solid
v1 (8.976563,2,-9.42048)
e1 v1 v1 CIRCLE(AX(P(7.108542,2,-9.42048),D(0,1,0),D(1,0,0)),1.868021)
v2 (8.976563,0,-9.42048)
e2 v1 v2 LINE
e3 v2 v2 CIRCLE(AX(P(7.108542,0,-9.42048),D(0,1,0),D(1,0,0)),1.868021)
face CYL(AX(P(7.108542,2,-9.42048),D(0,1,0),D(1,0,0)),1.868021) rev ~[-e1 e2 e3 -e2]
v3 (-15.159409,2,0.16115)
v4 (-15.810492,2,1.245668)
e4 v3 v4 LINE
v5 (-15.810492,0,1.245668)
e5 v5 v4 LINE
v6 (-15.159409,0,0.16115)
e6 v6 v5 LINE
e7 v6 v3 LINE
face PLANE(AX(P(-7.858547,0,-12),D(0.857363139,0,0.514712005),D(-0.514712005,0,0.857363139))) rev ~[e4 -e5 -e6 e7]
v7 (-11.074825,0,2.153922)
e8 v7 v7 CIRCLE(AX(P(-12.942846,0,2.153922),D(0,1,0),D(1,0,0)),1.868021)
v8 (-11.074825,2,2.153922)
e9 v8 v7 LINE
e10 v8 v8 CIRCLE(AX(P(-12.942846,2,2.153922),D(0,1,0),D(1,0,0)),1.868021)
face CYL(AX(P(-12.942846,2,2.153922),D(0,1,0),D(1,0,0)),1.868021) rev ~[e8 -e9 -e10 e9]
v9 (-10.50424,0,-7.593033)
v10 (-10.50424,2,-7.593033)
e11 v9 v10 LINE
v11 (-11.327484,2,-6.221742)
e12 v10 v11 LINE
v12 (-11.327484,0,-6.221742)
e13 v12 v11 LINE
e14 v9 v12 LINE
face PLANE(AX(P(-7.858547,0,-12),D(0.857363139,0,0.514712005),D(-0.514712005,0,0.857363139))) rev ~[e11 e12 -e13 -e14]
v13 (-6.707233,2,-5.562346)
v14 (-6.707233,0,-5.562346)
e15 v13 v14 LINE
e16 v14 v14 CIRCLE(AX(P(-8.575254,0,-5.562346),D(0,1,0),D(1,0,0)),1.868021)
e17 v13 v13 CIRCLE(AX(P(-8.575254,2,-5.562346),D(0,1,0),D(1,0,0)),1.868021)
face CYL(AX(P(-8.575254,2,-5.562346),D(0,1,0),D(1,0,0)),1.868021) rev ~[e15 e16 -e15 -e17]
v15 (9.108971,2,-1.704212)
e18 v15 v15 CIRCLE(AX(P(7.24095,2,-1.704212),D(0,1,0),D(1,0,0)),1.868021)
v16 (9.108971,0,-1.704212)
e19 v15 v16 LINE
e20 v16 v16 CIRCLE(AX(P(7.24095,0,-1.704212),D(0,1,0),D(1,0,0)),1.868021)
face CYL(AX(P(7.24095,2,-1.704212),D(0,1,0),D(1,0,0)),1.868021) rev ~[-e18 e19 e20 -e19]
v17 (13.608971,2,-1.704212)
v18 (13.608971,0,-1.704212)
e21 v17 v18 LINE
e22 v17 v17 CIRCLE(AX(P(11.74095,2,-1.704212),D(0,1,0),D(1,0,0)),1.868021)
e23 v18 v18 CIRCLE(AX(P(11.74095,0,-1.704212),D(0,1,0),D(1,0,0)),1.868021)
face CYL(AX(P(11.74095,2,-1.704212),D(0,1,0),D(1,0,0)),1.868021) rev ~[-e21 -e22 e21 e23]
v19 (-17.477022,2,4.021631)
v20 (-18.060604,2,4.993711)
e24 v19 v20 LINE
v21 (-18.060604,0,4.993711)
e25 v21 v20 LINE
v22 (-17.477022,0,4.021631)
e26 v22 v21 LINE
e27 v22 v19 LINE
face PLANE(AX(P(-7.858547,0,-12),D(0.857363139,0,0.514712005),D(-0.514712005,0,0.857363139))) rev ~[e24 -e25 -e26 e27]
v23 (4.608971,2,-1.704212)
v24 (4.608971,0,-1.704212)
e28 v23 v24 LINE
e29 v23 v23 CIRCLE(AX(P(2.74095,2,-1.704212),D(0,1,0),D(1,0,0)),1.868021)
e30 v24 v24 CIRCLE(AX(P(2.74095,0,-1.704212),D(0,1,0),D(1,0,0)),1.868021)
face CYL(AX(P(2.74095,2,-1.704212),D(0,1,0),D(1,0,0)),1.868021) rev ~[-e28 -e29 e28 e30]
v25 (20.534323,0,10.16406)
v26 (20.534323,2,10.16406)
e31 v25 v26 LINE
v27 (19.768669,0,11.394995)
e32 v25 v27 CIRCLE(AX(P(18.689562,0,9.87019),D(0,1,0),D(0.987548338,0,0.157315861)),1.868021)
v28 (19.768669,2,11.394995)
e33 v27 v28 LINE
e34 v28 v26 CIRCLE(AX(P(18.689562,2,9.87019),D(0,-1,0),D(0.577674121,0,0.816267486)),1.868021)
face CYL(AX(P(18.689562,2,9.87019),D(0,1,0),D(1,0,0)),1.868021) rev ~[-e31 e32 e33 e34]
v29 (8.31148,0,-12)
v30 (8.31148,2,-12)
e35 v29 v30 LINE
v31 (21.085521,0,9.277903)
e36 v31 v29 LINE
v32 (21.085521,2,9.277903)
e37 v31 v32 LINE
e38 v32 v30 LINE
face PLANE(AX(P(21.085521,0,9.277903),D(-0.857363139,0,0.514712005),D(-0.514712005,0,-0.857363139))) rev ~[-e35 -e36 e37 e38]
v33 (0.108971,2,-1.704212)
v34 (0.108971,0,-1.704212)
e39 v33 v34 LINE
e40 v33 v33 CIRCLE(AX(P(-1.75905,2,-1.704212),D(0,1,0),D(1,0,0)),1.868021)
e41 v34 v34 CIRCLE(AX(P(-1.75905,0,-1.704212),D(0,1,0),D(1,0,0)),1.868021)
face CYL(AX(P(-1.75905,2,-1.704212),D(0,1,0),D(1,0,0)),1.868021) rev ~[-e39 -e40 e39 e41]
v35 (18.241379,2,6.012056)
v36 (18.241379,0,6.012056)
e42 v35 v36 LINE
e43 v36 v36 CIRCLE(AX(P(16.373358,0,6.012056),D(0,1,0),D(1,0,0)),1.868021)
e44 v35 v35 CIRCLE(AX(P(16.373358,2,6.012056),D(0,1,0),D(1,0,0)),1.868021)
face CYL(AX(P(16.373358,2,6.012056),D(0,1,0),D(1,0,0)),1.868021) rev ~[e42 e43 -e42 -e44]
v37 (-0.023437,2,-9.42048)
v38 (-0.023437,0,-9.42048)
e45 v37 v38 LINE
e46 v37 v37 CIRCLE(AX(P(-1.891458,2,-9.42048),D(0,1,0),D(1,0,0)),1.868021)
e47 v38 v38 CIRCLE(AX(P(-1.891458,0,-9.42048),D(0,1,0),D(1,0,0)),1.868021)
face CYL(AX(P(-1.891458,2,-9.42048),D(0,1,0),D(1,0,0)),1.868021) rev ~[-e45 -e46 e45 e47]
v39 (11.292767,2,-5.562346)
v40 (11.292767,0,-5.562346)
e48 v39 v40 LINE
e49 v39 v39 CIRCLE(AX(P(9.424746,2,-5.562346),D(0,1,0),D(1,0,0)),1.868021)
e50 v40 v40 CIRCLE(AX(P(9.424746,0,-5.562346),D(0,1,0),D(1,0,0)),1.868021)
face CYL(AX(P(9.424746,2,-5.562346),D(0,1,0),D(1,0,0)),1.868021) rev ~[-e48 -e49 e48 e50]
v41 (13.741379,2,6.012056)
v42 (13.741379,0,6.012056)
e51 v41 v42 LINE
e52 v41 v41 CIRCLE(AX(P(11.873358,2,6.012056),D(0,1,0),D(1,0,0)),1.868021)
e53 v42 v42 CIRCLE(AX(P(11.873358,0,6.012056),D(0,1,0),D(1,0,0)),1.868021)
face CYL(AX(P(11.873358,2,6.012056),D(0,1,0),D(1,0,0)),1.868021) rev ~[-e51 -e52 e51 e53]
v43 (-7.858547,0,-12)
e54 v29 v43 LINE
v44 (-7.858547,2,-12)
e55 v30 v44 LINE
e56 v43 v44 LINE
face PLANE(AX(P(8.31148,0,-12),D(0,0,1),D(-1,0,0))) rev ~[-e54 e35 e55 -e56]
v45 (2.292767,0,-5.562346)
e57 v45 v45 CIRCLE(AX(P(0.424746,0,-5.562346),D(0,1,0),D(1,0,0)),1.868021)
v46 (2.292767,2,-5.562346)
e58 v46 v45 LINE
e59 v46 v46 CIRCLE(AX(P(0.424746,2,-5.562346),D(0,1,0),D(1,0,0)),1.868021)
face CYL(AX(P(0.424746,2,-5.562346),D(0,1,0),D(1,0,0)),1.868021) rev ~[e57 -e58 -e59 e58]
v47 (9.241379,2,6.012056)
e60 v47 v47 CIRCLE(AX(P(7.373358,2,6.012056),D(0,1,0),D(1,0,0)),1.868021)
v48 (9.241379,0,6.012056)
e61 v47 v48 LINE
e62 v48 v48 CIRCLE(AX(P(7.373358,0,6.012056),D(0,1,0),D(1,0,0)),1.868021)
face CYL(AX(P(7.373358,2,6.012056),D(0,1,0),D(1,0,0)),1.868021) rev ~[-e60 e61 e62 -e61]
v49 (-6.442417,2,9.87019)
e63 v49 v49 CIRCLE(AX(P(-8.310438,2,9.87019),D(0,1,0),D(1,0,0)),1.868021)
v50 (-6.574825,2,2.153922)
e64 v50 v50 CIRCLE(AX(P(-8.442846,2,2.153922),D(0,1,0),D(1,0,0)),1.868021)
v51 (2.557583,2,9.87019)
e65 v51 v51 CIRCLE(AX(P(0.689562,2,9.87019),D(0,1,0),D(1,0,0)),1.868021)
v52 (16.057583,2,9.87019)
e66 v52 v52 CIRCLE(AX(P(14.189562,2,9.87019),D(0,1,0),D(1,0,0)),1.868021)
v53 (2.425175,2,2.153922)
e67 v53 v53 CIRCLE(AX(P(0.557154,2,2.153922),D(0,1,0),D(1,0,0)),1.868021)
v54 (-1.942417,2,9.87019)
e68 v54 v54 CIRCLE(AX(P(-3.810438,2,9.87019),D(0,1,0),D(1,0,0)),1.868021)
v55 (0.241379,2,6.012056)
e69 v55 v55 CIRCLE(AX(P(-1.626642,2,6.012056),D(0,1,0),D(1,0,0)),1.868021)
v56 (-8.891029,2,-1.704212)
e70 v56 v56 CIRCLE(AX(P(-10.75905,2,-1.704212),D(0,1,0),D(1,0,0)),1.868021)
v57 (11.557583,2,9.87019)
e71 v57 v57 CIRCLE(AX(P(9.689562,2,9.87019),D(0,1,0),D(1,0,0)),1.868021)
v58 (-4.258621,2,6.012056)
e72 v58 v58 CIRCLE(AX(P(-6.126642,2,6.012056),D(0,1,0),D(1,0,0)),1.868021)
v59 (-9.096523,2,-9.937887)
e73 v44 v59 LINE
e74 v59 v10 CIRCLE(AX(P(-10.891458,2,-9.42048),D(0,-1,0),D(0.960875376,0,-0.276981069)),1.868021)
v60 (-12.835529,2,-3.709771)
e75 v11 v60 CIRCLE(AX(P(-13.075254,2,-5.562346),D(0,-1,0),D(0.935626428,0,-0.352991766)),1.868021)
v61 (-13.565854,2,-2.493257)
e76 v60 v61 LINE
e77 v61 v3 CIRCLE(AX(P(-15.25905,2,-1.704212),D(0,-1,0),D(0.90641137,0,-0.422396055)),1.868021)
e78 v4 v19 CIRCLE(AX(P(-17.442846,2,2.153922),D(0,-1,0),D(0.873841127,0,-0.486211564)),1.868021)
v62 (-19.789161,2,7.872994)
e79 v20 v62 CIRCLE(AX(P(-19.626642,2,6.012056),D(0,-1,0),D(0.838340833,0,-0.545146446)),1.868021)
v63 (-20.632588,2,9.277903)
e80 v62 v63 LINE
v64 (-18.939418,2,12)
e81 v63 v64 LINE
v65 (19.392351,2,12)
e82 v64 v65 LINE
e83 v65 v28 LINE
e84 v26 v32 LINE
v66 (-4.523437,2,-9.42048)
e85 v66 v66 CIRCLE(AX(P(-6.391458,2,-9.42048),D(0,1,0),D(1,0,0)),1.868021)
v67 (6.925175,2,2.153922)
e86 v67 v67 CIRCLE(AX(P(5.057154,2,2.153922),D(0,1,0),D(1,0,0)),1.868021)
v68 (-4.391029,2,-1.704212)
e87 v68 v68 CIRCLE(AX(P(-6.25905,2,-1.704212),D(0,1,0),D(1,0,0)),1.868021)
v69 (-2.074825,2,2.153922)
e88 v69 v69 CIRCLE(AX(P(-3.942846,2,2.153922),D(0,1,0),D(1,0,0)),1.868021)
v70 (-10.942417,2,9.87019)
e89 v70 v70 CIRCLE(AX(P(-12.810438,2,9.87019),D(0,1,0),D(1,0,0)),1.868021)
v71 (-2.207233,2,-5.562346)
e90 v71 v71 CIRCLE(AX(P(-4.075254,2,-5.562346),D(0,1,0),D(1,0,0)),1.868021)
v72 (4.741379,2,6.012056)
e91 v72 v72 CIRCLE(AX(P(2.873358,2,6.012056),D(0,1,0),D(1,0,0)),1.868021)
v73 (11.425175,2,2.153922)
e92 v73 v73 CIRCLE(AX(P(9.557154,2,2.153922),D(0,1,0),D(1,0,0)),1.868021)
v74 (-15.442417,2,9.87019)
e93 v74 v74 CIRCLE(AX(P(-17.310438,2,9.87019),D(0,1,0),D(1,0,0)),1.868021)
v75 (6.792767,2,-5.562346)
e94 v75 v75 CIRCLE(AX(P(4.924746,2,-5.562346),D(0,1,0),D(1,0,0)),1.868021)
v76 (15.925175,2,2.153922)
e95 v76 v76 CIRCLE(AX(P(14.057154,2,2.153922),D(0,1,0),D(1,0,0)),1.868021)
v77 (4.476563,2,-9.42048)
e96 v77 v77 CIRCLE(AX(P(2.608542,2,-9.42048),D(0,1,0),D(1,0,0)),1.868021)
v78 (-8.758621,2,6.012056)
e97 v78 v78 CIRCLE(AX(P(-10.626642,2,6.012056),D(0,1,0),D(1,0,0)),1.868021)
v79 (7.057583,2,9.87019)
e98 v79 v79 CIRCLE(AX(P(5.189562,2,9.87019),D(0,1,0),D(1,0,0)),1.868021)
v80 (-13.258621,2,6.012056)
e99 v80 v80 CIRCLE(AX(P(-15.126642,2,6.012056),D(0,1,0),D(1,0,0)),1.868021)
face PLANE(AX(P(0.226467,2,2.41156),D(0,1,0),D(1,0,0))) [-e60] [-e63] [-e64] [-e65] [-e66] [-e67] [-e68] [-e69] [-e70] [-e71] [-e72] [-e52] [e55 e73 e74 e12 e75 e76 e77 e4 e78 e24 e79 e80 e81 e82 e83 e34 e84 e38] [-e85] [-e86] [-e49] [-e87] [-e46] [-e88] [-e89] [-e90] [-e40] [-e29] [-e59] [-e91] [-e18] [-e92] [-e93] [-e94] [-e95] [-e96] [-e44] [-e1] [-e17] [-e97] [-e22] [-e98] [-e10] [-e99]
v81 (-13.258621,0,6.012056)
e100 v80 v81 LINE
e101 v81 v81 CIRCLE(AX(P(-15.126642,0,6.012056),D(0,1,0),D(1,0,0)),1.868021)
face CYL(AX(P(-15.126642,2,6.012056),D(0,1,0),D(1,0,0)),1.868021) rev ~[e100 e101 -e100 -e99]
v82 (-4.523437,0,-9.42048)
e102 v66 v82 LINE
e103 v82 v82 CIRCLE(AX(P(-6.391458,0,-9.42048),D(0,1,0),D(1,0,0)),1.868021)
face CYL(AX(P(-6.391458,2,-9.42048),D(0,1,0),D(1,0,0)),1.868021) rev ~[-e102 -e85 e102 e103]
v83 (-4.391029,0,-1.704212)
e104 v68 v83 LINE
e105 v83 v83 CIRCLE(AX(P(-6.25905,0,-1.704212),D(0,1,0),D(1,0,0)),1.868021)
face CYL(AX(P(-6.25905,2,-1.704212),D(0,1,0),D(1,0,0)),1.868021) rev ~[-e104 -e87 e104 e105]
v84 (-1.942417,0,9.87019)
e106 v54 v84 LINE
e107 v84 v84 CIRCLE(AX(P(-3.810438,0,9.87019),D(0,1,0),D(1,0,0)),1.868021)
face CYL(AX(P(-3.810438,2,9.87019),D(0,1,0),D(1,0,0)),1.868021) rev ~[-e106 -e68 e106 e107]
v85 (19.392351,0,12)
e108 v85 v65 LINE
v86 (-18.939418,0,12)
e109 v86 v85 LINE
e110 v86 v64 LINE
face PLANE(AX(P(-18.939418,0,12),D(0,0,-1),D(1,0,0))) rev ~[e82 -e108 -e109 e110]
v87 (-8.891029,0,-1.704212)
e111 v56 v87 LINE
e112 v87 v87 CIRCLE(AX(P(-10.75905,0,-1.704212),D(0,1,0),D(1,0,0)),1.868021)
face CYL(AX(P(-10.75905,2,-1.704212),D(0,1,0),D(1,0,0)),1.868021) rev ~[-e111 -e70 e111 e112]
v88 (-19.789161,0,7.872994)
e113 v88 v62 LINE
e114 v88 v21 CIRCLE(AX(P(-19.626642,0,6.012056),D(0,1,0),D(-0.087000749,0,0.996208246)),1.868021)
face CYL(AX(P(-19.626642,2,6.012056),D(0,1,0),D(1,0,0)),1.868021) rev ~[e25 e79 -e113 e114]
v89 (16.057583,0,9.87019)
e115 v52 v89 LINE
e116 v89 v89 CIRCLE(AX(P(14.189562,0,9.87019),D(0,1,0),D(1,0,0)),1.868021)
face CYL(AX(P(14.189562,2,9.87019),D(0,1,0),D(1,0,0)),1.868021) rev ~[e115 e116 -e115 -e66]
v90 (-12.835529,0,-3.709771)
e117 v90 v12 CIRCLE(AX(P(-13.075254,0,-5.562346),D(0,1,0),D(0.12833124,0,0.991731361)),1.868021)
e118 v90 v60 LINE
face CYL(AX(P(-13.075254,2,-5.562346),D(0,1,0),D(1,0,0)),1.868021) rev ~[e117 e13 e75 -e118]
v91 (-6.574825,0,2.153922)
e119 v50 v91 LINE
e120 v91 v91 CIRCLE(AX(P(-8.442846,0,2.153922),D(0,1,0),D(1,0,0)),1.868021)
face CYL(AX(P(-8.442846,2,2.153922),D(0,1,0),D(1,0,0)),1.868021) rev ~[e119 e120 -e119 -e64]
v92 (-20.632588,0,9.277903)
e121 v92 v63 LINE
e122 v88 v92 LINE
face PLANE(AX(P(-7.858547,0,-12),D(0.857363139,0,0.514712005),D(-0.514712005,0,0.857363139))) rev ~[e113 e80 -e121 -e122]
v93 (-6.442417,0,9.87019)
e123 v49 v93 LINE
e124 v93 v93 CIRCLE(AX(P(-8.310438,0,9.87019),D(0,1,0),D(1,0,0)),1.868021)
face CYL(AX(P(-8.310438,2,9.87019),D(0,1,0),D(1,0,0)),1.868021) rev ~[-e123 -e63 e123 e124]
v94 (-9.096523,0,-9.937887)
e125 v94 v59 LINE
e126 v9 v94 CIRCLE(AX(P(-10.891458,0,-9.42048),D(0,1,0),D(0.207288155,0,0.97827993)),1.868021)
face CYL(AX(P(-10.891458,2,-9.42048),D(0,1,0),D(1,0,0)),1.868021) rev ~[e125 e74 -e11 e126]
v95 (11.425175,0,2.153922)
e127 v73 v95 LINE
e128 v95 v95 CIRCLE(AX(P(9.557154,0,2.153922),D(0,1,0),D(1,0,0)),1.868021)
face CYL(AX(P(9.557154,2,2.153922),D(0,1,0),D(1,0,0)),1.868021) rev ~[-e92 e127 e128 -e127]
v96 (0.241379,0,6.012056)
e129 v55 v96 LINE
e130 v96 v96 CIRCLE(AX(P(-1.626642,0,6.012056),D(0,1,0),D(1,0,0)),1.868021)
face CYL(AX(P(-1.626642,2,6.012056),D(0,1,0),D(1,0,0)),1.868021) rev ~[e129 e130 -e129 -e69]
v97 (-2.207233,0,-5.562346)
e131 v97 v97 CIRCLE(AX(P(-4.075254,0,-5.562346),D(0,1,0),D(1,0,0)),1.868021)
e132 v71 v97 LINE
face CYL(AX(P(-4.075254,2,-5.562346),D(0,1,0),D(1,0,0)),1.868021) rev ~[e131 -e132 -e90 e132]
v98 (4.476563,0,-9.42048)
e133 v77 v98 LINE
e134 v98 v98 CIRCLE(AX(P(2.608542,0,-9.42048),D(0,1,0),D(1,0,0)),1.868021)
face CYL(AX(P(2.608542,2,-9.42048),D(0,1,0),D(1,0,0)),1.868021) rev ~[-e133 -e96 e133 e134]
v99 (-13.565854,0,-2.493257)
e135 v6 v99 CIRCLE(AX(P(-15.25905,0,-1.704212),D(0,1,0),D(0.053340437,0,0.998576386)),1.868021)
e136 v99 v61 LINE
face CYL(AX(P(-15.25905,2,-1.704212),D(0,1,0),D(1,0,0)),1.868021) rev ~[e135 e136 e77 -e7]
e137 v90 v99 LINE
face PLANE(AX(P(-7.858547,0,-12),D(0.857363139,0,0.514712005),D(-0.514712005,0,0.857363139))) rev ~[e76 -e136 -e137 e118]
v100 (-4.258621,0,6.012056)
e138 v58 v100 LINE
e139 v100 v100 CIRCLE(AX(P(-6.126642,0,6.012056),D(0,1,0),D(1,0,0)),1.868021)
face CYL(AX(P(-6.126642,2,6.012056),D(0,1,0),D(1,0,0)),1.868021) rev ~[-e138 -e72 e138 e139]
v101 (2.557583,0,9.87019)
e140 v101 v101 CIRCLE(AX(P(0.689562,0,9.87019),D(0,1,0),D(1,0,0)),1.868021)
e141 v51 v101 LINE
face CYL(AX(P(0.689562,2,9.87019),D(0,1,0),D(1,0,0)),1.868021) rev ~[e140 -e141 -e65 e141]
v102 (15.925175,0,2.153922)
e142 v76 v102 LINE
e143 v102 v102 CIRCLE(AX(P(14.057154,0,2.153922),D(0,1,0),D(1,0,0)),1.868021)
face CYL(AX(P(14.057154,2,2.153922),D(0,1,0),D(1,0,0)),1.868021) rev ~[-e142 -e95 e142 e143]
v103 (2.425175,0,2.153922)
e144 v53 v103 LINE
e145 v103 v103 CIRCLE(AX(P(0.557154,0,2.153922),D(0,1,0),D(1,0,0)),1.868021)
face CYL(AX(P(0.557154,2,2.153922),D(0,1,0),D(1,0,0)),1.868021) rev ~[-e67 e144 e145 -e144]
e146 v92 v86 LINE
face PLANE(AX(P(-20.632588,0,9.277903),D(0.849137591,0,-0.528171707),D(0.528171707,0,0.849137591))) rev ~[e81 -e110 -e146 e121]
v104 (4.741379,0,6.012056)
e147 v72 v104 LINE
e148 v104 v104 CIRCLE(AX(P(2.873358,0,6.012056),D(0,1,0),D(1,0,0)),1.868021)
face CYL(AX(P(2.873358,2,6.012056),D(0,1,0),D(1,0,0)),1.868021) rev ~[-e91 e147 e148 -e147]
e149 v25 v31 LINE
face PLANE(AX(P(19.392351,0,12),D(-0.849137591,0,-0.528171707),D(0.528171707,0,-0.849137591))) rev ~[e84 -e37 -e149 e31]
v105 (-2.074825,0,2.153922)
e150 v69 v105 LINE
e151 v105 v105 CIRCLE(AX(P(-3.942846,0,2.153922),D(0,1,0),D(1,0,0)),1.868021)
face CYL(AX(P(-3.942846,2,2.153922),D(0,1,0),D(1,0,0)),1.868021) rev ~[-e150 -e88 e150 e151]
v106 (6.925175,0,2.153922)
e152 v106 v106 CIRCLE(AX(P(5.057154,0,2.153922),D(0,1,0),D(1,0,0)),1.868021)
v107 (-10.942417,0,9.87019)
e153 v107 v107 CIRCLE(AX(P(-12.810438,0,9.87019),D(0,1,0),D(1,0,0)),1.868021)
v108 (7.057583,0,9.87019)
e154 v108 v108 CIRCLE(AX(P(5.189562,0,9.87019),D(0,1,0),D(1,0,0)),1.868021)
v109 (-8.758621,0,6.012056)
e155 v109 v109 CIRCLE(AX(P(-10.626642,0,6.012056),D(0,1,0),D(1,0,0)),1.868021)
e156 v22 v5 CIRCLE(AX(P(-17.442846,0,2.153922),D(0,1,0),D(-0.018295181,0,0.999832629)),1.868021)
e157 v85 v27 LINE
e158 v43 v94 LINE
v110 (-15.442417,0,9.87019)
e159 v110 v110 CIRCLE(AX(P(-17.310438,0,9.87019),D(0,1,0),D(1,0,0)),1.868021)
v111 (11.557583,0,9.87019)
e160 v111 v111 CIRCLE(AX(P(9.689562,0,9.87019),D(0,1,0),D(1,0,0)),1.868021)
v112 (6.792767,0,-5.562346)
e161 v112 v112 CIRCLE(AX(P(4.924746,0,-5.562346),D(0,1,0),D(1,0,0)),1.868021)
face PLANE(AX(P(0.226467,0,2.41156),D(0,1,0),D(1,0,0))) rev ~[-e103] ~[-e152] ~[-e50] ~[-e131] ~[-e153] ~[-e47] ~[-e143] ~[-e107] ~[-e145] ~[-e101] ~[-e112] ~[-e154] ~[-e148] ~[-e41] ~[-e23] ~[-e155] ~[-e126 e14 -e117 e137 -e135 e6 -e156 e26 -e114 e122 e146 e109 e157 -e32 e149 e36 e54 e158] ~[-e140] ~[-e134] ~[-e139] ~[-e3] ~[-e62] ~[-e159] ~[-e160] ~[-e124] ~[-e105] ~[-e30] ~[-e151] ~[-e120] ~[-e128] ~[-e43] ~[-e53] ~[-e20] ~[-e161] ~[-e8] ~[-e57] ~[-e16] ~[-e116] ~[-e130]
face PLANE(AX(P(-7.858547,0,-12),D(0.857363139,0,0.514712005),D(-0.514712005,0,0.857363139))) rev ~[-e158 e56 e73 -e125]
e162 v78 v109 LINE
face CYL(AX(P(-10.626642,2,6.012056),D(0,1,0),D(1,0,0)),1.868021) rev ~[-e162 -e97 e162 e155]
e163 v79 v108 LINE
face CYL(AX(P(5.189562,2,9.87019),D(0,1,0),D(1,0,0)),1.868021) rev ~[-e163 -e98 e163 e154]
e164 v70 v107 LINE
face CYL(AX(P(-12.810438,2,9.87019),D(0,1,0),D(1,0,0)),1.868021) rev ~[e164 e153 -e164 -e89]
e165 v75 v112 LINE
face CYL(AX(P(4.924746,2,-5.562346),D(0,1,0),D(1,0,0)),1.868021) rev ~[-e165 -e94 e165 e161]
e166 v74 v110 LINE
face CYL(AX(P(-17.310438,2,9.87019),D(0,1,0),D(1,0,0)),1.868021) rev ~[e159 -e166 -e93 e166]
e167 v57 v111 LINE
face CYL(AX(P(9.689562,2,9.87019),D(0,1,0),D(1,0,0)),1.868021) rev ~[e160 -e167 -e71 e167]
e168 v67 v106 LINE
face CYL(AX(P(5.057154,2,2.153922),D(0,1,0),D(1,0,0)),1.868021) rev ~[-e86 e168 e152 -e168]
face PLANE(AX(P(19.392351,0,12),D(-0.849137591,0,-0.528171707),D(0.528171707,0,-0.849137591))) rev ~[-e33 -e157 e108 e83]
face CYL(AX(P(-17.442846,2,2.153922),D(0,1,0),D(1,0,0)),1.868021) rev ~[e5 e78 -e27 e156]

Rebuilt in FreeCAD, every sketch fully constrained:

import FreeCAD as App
import Part
import Sketcher
from FreeCAD import Vector
Q = App.Units.Quantity


def add_polygon(sketch, points):
    """Adds a closed chain of lines whose ends are joined by coincident constraints."""
    first, n = sketch.GeometryCount, len(points)
    for a, b in zip(points, points[1:] + points[:1]):
        sketch.addGeometry(Part.LineSegment(App.Vector(*a, 0), App.Vector(*b, 0)), False)
    for i in range(n):
        sketch.addConstraint(Sketcher.Constraint("Coincident", first + i, 2, first + (i + 1) % n, 1))

doc = App.newDocument("Part")
body = doc.addObject("PartDesign::Body", "Body")

# Sketch on XZ plane
sketch1 = body.newObject("Sketcher::SketchObject", "Sketch")
sketch1.AttachmentSupport = (doc.getObject("XZ_Plane"), [""])
sketch1.MapMode = "FlatFace"
add_polygon(sketch1, [(8.3, -12), (-7.9, -12), (-20.6, 9.3), (-18.9, 12), (19.4, 12), (21.1, 9.3)])  # lines 0-5
sketch1.addConstraint(Sketcher.Constraint("Horizontal", 0))
sketch1.addConstraint(Sketcher.Constraint("Horizontal", 3))
sketch1.addConstraint(Sketcher.Constraint("Horizontal", 1, 2, 4, 2))
sketch1.addConstraint(Sketcher.Constraint("Equal", 2, 4))
sketch1.addConstraint(Sketcher.Constraint("Equal", 1, 5))
sketch1.addConstraint(Sketcher.Constraint("DistanceY", 0, 2, -1, 1, Q("12 mm")))
sketch1.addConstraint(Sketcher.Constraint("DistanceY", -1, 1, 2, 2, Q("12 mm")))
sketch1.addConstraint(Sketcher.Constraint("DistanceX", 3, 1, 3, 2, Q("38.331768 mm")))
sketch1.addConstraint(Sketcher.Constraint("DistanceX", 0, 2, 3, 2, Q("27.250898 mm")))
sketch1.addConstraint(Sketcher.Constraint("Distance", 1, Q("24.817842 mm")))
sketch1.addConstraint(Sketcher.Constraint("Distance", 2, Q("3.20572 mm")))
sketch1.addConstraint(Sketcher.Constraint("DistanceX", 1, 2, -1, 1, Q("20.632588 mm")))
pad1 = body.newObject("PartDesign::Pad", "Pad")
pad1.Profile = sketch1
pad1.Length = 2
pad1.Reversed = True

# Sketch on XZ plane
sketch2 = body.newObject("Sketcher::SketchObject", "Sketch001")
sketch2.AttachmentSupport = (doc.getObject("XZ_Plane"), [""])
sketch2.MapMode = "FlatFace"
sketch2.AttachmentOffset = App.Placement(Vector(0, 0, -2), App.Rotation())
sketch2.addGeometry(Part.Circle(Vector(7.1, -9.4, 0), Vector(0, 0, 1), 1.9), False)
sketch2.addConstraint(Sketcher.Constraint("Diameter", 0, Q("3.736043 mm")))
sketch2.addConstraint(Sketcher.Constraint("DistanceX", -1, 1, 0, 3, Q("7.108542 mm")))
sketch2.addConstraint(Sketcher.Constraint("DistanceY", 0, 3, -1, 1, Q("9.42048 mm")))
pocket1 = body.newObject("PartDesign::Pocket", "Pocket")
pocket1.Profile = sketch2
pocket1.Length = 2
pocket1.Reversed = True
doc.recompute()

linearpattern = body.newObject("PartDesign::LinearPattern", "LinearPattern")
linearpattern.Originals = [pocket1]
linearpattern.Direction = (doc.getObject("X_Axis"), [""])
linearpattern.Mode = "offset"
linearpattern.Offset = 4.5
linearpattern.Occurrences = 4
linearpattern.Reversed = True
body.Tip = linearpattern
doc.recompute()

datumline = body.newObject("PartDesign::Line", "DatumLine")
datumline.Placement = App.Placement(Vector(0, 0, 0), App.Rotation(Vector(0, 0, 1), Vector(0.514712005, 0, 0.857363139)))
linearpattern2 = body.newObject("PartDesign::LinearPattern", "LinearPattern001")
linearpattern2.Originals = [pocket1]
linearpattern2.Direction = (datumline, [""])
linearpattern2.Mode = "offset"
linearpattern2.Offset = 4.5
linearpattern2.Occurrences = 6
body.Tip = linearpattern2
doc.recompute()

linearpattern3 = body.newObject("PartDesign::LinearPattern", "LinearPattern002")
linearpattern3.Originals = [pocket1]
linearpattern3.Direction = (doc.getObject("X_Axis"), [""])
linearpattern3.Mode = "offset"
linearpattern3.Offset = 4.5
linearpattern3.Occurrences = 9
linearpattern3.Reversed = True
body.Tip = linearpattern3

# Sketch on XZ plane
sketch3 = body.newObject("Sketcher::SketchObject", "Sketch002")
sketch3.AttachmentSupport = (doc.getObject("XZ_Plane"), [""])
sketch3.MapMode = "FlatFace"
sketch3.AttachmentOffset = App.Placement(Vector(0, 0, -2), App.Rotation())
sketch3.addGeometry(Part.Circle(Vector(4.9, -5.6, 0), Vector(0, 0, 1), 1.9), False)
sketch3.addConstraint(Sketcher.Constraint("Diameter", 0, Q("3.736043 mm")))
sketch3.addConstraint(Sketcher.Constraint("DistanceX", -1, 1, 0, 3, Q("4.924746 mm")))
sketch3.addConstraint(Sketcher.Constraint("DistanceY", 0, 3, -1, 1, Q("5.562346 mm")))
pocket2 = body.newObject("PartDesign::Pocket", "Pocket001")
pocket2.Profile = sketch3
pocket2.Length = 2
pocket2.Reversed = True

# Sketch on XZ plane
sketch4 = body.newObject("Sketcher::SketchObject", "Sketch003")
sketch4.AttachmentSupport = (doc.getObject("XZ_Plane"), [""])
sketch4.MapMode = "FlatFace"
sketch4.AttachmentOffset = App.Placement(Vector(0, 0, -2), App.Rotation())
sketch4.addGeometry(Part.Circle(Vector(0.4, -5.6, 0), Vector(0, 0, 1), 1.9), False)
sketch4.addConstraint(Sketcher.Constraint("Diameter", 0, Q("3.736043 mm")))
sketch4.addConstraint(Sketcher.Constraint("DistanceX", -1, 1, 0, 3, Q("0.424746 mm")))
sketch4.addConstraint(Sketcher.Constraint("DistanceY", 0, 3, -1, 1, Q("5.562346 mm")))
pocket3 = body.newObject("PartDesign::Pocket", "Pocket002")
pocket3.Profile = sketch4
pocket3.Length = 2
pocket3.Reversed = True

# Sketch on XZ plane
sketch5 = body.newObject("Sketcher::SketchObject", "Sketch004")
sketch5.AttachmentSupport = (doc.getObject("XZ_Plane"), [""])
sketch5.MapMode = "FlatFace"
sketch5.AttachmentOffset = App.Placement(Vector(0, 0, -2), App.Rotation())
sketch5.addGeometry(Part.Circle(Vector(-4.1, -5.6, 0), Vector(0, 0, 1), 1.9), False)
sketch5.addConstraint(Sketcher.Constraint("Diameter", 0, Q("3.736043 mm")))
sketch5.addConstraint(Sketcher.Constraint("DistanceX", 0, 3, -1, 1, Q("4.075254 mm")))
sketch5.addConstraint(Sketcher.Constraint("DistanceY", 0, 3, -1, 1, Q("5.562346 mm")))
pocket4 = body.newObject("PartDesign::Pocket", "Pocket003")
pocket4.Profile = sketch5
pocket4.Length = 2
pocket4.Reversed = True

# Sketch on XZ plane
sketch6 = body.newObject("Sketcher::SketchObject", "Sketch005")
sketch6.AttachmentSupport = (doc.getObject("XZ_Plane"), [""])
sketch6.MapMode = "FlatFace"
sketch6.AttachmentOffset = App.Placement(Vector(0, 0, -2), App.Rotation())
sketch6.addGeometry(Part.Circle(Vector(-8.6, -5.6, 0), Vector(0, 0, 1), 1.9), False)
sketch6.addConstraint(Sketcher.Constraint("Diameter", 0, Q("3.736043 mm")))
sketch6.addConstraint(Sketcher.Constraint("DistanceX", 0, 3, -1, 1, Q("8.575254 mm")))
sketch6.addConstraint(Sketcher.Constraint("DistanceY", 0, 3, -1, 1, Q("5.562346 mm")))
pocket5 = body.newObject("PartDesign::Pocket", "Pocket004")
pocket5.Profile = sketch6
pocket5.Length = 2
pocket5.Reversed = True

# Sketch on XZ plane
sketch7 = body.newObject("Sketcher::SketchObject", "Sketch006")
sketch7.AttachmentSupport = (doc.getObject("XZ_Plane"), [""])
sketch7.MapMode = "FlatFace"
sketch7.AttachmentOffset = App.Placement(Vector(0, 0, -2), App.Rotation())
sketch7.addGeometry(Part.Circle(Vector(-13.1, -5.6, 0), Vector(0, 0, 1), 1.9), False)
sketch7.addConstraint(Sketcher.Constraint("Diameter", 0, Q("3.736043 mm")))
sketch7.addConstraint(Sketcher.Constraint("DistanceX", 0, 3, -1, 1, Q("13.075254 mm")))
sketch7.addConstraint(Sketcher.Constraint("DistanceY", 0, 3, -1, 1, Q("5.562346 mm")))
pocket6 = body.newObject("PartDesign::Pocket", "Pocket005")
pocket6.Profile = sketch7
pocket6.Length = 2
pocket6.Reversed = True

# Sketch on XZ plane
sketch8 = body.newObject("Sketcher::SketchObject", "Sketch007")
sketch8.AttachmentSupport = (doc.getObject("XZ_Plane"), [""])
sketch8.MapMode = "FlatFace"
sketch8.AttachmentOffset = App.Placement(Vector(0, 0, -2), App.Rotation())
sketch8.addGeometry(Part.Circle(Vector(-17.6, -5.6, 0), Vector(0, 0, 1), 1.9), False)
sketch8.addConstraint(Sketcher.Constraint("Diameter", 0, Q("3.736043 mm")))
sketch8.addConstraint(Sketcher.Constraint("DistanceX", 0, 3, -1, 1, Q("17.575254 mm")))
sketch8.addConstraint(Sketcher.Constraint("DistanceY", 0, 3, -1, 1, Q("5.562346 mm")))
pocket7 = body.newObject("PartDesign::Pocket", "Pocket006")
pocket7.Profile = sketch8
pocket7.Length = 2
pocket7.Reversed = True

# Sketch on XZ plane
sketch9 = body.newObject("Sketcher::SketchObject", "Sketch008")
sketch9.AttachmentSupport = (doc.getObject("XZ_Plane"), [""])
sketch9.MapMode = "FlatFace"
sketch9.AttachmentOffset = App.Placement(Vector(0, 0, -2), App.Rotation())
sketch9.addGeometry(Part.Circle(Vector(-22.1, -5.6, 0), Vector(0, 0, 1), 1.9), False)
sketch9.addConstraint(Sketcher.Constraint("Diameter", 0, Q("3.736043 mm")))
sketch9.addConstraint(Sketcher.Constraint("DistanceX", 0, 3, -1, 1, Q("22.075254 mm")))
sketch9.addConstraint(Sketcher.Constraint("DistanceY", 0, 3, -1, 1, Q("5.562346 mm")))
pocket8 = body.newObject("PartDesign::Pocket", "Pocket007")
pocket8.Profile = sketch9
pocket8.Length = 2
pocket8.Reversed = True

# Sketch on XZ plane
sketch10 = body.newObject("Sketcher::SketchObject", "Sketch009")
sketch10.AttachmentSupport = (doc.getObject("XZ_Plane"), [""])
sketch10.MapMode = "FlatFace"
sketch10.AttachmentOffset = App.Placement(Vector(0, 0, -2), App.Rotation())
sketch10.addGeometry(Part.Circle(Vector(-26.6, -5.6, 0), Vector(0, 0, 1), 1.9), False)
sketch10.addConstraint(Sketcher.Constraint("Diameter", 0, Q("3.736043 mm")))
sketch10.addConstraint(Sketcher.Constraint("DistanceX", 0, 3, -1, 1, Q("26.575254 mm")))
sketch10.addConstraint(Sketcher.Constraint("DistanceY", 0, 3, -1, 1, Q("5.562346 mm")))
pocket9 = body.newObject("PartDesign::Pocket", "Pocket008")
pocket9.Profile = sketch10
pocket9.Length = 2
pocket9.Reversed = True

# Sketch on XZ plane
sketch11 = body.newObject("Sketcher::SketchObject", "Sketch010")
sketch11.AttachmentSupport = (doc.getObject("XZ_Plane"), [""])
sketch11.MapMode = "FlatFace"
sketch11.AttachmentOffset = App.Placement(Vector(0, 0, -2), App.Rotation())
sketch11.addGeometry(Part.Circle(Vector(7.2, -1.7, 0), Vector(0, 0, 1), 1.9), False)
sketch11.addConstraint(Sketcher.Constraint("Diameter", 0, Q("3.736043 mm")))
sketch11.addConstraint(Sketcher.Constraint("DistanceX", -1, 1, 0, 3, Q("7.24095 mm")))
sketch11.addConstraint(Sketcher.Constraint("DistanceY", 0, 3, -1, 1, Q("1.704212 mm")))
pocket10 = body.newObject("PartDesign::Pocket", "Pocket009")
pocket10.Profile = sketch11
pocket10.Length = 2
pocket10.Reversed = True

# Sketch on XZ plane
sketch12 = body.newObject("Sketcher::SketchObject", "Sketch011")
sketch12.AttachmentSupport = (doc.getObject("XZ_Plane"), [""])
sketch12.MapMode = "FlatFace"
sketch12.AttachmentOffset = App.Placement(Vector(0, 0, -2), App.Rotation())
sketch12.addGeometry(Part.Circle(Vector(2.7, -1.7, 0), Vector(0, 0, 1), 1.9), False)
sketch12.addConstraint(Sketcher.Constraint("Diameter", 0, Q("3.736043 mm")))
sketch12.addConstraint(Sketcher.Constraint("DistanceX", -1, 1, 0, 3, Q("2.74095 mm")))
sketch12.addConstraint(Sketcher.Constraint("DistanceY", 0, 3, -1, 1, Q("1.704212 mm")))
pocket11 = body.newObject("PartDesign::Pocket", "Pocket010")
pocket11.Profile = sketch12
pocket11.Length = 2
pocket11.Reversed = True

# Sketch on XZ plane
sketch13 = body.newObject("Sketcher::SketchObject", "Sketch012")
sketch13.AttachmentSupport = (doc.getObject("XZ_Plane"), [""])
sketch13.MapMode = "FlatFace"
sketch13.AttachmentOffset = App.Placement(Vector(0, 0, -2), App.Rotation())
sketch13.addGeometry(Part.Circle(Vector(-1.8, -1.7, 0), Vector(0, 0, 1), 1.9), False)
sketch13.addConstraint(Sketcher.Constraint("Diameter", 0, Q("3.736043 mm")))
sketch13.addConstraint(Sketcher.Constraint("DistanceX", 0, 3, -1, 1, Q("1.75905 mm")))
sketch13.addConstraint(Sketcher.Constraint("DistanceY", 0, 3, -1, 1, Q("1.704212 mm")))
pocket12 = body.newObject("PartDesign::Pocket", "Pocket011")
pocket12.Profile = sketch13
pocket12.Length = 2
pocket12.Reversed = True

# Sketch on XZ plane
sketch14 = body.newObject("Sketcher::SketchObject", "Sketch013")
sketch14.AttachmentSupport = (doc.getObject("XZ_Plane"), [""])
sketch14.MapMode = "FlatFace"
sketch14.AttachmentOffset = App.Placement(Vector(0, 0, -2), App.Rotation())
sketch14.addGeometry(Part.Circle(Vector(-6.3, -1.7, 0), Vector(0, 0, 1), 1.9), False)
sketch14.addConstraint(Sketcher.Constraint("Diameter", 0, Q("3.736043 mm")))
sketch14.addConstraint(Sketcher.Constraint("DistanceX", 0, 3, -1, 1, Q("6.25905 mm")))
sketch14.addConstraint(Sketcher.Constraint("DistanceY", 0, 3, -1, 1, Q("1.704212 mm")))
pocket13 = body.newObject("PartDesign::Pocket", "Pocket012")
pocket13.Profile = sketch14
pocket13.Length = 2
pocket13.Reversed = True

# Sketch on XZ plane
sketch15 = body.newObject("Sketcher::SketchObject", "Sketch014")
sketch15.AttachmentSupport = (doc.getObject("XZ_Plane"), [""])
sketch15.MapMode = "FlatFace"
sketch15.AttachmentOffset = App.Placement(Vector(0, 0, -2), App.Rotation())
sketch15.addGeometry(Part.Circle(Vector(-10.8, -1.7, 0), Vector(0, 0, 1), 1.9), False)
sketch15.addConstraint(Sketcher.Constraint("Diameter", 0, Q("3.736043 mm")))
sketch15.addConstraint(Sketcher.Constraint("DistanceX", 0, 3, -1, 1, Q("10.75905 mm")))
sketch15.addConstraint(Sketcher.Constraint("DistanceY", 0, 3, -1, 1, Q("1.704212 mm")))
pocket14 = body.newObject("PartDesign::Pocket", "Pocket013")
pocket14.Profile = sketch15
pocket14.Length = 2
pocket14.Reversed = True

# Sketch on XZ plane
sketch16 = body.newObject("Sketcher::SketchObject", "Sketch015")
sketch16.AttachmentSupport = (doc.getObject("XZ_Plane"), [""])
sketch16.MapMode = "FlatFace"
sketch16.AttachmentOffset = App.Placement(Vector(0, 0, -2), App.Rotation())
sketch16.addGeometry(Part.Circle(Vector(-15.3, -1.7, 0), Vector(0, 0, 1), 1.9), False)
sketch16.addConstraint(Sketcher.Constraint("Diameter", 0, Q("3.736043 mm")))
sketch16.addConstraint(Sketcher.Constraint("DistanceX", 0, 3, -1, 1, Q("15.25905 mm")))
sketch16.addConstraint(Sketcher.Constraint("DistanceY", 0, 3, -1, 1, Q("1.704212 mm")))
pocket15 = body.newObject("PartDesign::Pocket", "Pocket014")
pocket15.Profile = sketch16
pocket15.Length = 2
pocket15.Reversed = True

# Sketch on XZ plane
sketch17 = body.newObject("Sketcher::SketchObject", "Sketch016")
sketch17.AttachmentSupport = (doc.getObject("XZ_Plane"), [""])
sketch17.MapMode = "FlatFace"
sketch17.AttachmentOffset = App.Placement(Vector(0, 0, -2), App.Rotation())
sketch17.addGeometry(Part.Circle(Vector(-19.8, -1.7, 0), Vector(0, 0, 1), 1.9), False)
sketch17.addConstraint(Sketcher.Constraint("Diameter", 0, Q("3.736043 mm")))
sketch17.addConstraint(Sketcher.Constraint("DistanceX", 0, 3, -1, 1, Q("19.75905 mm")))
sketch17.addConstraint(Sketcher.Constraint("DistanceY", 0, 3, -1, 1, Q("1.704212 mm")))
pocket16 = body.newObject("PartDesign::Pocket", "Pocket015")
pocket16.Profile = sketch17
pocket16.Length = 2
pocket16.Reversed = True

# Sketch on XZ plane
sketch18 = body.newObject("Sketcher::SketchObject", "Sketch017")
sketch18.AttachmentSupport = (doc.getObject("XZ_Plane"), [""])
sketch18.MapMode = "FlatFace"
sketch18.AttachmentOffset = App.Placement(Vector(0, 0, -2), App.Rotation())
sketch18.addGeometry(Part.Circle(Vector(-24.3, -1.7, 0), Vector(0, 0, 1), 1.9), False)
sketch18.addConstraint(Sketcher.Constraint("Diameter", 0, Q("3.736043 mm")))
sketch18.addConstraint(Sketcher.Constraint("DistanceX", 0, 3, -1, 1, Q("24.25905 mm")))
sketch18.addConstraint(Sketcher.Constraint("DistanceY", 0, 3, -1, 1, Q("1.704212 mm")))
pocket17 = body.newObject("PartDesign::Pocket", "Pocket016")
pocket17.Profile = sketch18
pocket17.Length = 2
pocket17.Reversed = True

# Sketch on XZ plane
sketch19 = body.newObject("Sketcher::SketchObject", "Sketch018")
sketch19.AttachmentSupport = (doc.getObject("XZ_Plane"), [""])
sketch19.MapMode = "FlatFace"
sketch19.AttachmentOffset = App.Placement(Vector(0, 0, -2), App.Rotation())
sketch19.addGeometry(Part.Circle(Vector(9.6, 2.2, 0), Vector(0, 0, 1), 1.9), False)
sketch19.addConstraint(Sketcher.Constraint("Diameter", 0, Q("3.736043 mm")))
sketch19.addConstraint(Sketcher.Constraint("DistanceY", -1, 1, 0, 3, Q("2.153922 mm")))
sketch19.addConstraint(Sketcher.Constraint("DistanceX", -1, 1, 0, 3, Q("9.557154 mm")))
pocket18 = body.newObject("PartDesign::Pocket", "Pocket017")
pocket18.Profile = sketch19
pocket18.Length = 2
pocket18.Reversed = True

# Sketch on XZ plane
sketch20 = body.newObject("Sketcher::SketchObject", "Sketch019")
sketch20.AttachmentSupport = (doc.getObject("XZ_Plane"), [""])
sketch20.MapMode = "FlatFace"
sketch20.AttachmentOffset = App.Placement(Vector(0, 0, -2), App.Rotation())
sketch20.addGeometry(Part.Circle(Vector(5.1, 2.2, 0), Vector(0, 0, 1), 1.9), False)
sketch20.addConstraint(Sketcher.Constraint("Diameter", 0, Q("3.736043 mm")))
sketch20.addConstraint(Sketcher.Constraint("DistanceY", -1, 1, 0, 3, Q("2.153922 mm")))
sketch20.addConstraint(Sketcher.Constraint("DistanceX", -1, 1, 0, 3, Q("5.057154 mm")))
pocket19 = body.newObject("PartDesign::Pocket", "Pocket018")
pocket19.Profile = sketch20
pocket19.Length = 2
pocket19.Reversed = True

# Sketch on XZ plane
sketch21 = body.newObject("Sketcher::SketchObject", "Sketch020")
sketch21.AttachmentSupport = (doc.getObject("XZ_Plane"), [""])
sketch21.MapMode = "FlatFace"
sketch21.AttachmentOffset = App.Placement(Vector(0, 0, -2), App.Rotation())
sketch21.addGeometry(Part.Circle(Vector(0.6, 2.2, 0), Vector(0, 0, 1), 1.9), False)
sketch21.addConstraint(Sketcher.Constraint("Diameter", 0, Q("3.736043 mm")))
sketch21.addConstraint(Sketcher.Constraint("DistanceY", -1, 1, 0, 3, Q("2.153922 mm")))
sketch21.addConstraint(Sketcher.Constraint("DistanceX", -1, 1, 0, 3, Q("0.557154 mm")))
pocket20 = body.newObject("PartDesign::Pocket", "Pocket019")
pocket20.Profile = sketch21
pocket20.Length = 2
pocket20.Reversed = True

# Sketch on XZ plane
sketch22 = body.newObject("Sketcher::SketchObject", "Sketch021")
sketch22.AttachmentSupport = (doc.getObject("XZ_Plane"), [""])
sketch22.MapMode = "FlatFace"
sketch22.AttachmentOffset = App.Placement(Vector(0, 0, -2), App.Rotation())
sketch22.addGeometry(Part.Circle(Vector(-3.9, 2.2, 0), Vector(0, 0, 1), 1.9), False)
sketch22.addConstraint(Sketcher.Constraint("Diameter", 0, Q("3.736043 mm")))
sketch22.addConstraint(Sketcher.Constraint("DistanceY", -1, 1, 0, 3, Q("2.153922 mm")))
sketch22.addConstraint(Sketcher.Constraint("DistanceX", 0, 3, -1, 1, Q("3.942846 mm")))
pocket21 = body.newObject("PartDesign::Pocket", "Pocket020")
pocket21.Profile = sketch22
pocket21.Length = 2
pocket21.Reversed = True

# Sketch on XZ plane
sketch23 = body.newObject("Sketcher::SketchObject", "Sketch022")
sketch23.AttachmentSupport = (doc.getObject("XZ_Plane"), [""])
sketch23.MapMode = "FlatFace"
sketch23.AttachmentOffset = App.Placement(Vector(0, 0, -2), App.Rotation())
sketch23.addGeometry(Part.Circle(Vector(-8.4, 2.2, 0), Vector(0, 0, 1), 1.9), False)
sketch23.addConstraint(Sketcher.Constraint("Diameter", 0, Q("3.736043 mm")))
sketch23.addConstraint(Sketcher.Constraint("DistanceY", -1, 1, 0, 3, Q("2.153922 mm")))
sketch23.addConstraint(Sketcher.Constraint("DistanceX", 0, 3, -1, 1, Q("8.442846 mm")))
pocket22 = body.newObject("PartDesign::Pocket", "Pocket021")
pocket22.Profile = sketch23
pocket22.Length = 2
pocket22.Reversed = True

# Sketch on XZ plane
sketch24 = body.newObject("Sketcher::SketchObject", "Sketch023")
sketch24.AttachmentSupport = (doc.getObject("XZ_Plane"), [""])
sketch24.MapMode = "FlatFace"
sketch24.AttachmentOffset = App.Placement(Vector(0, 0, -2), App.Rotation())
sketch24.addGeometry(Part.Circle(Vector(-12.9, 2.2, 0), Vector(0, 0, 1), 1.9), False)
sketch24.addConstraint(Sketcher.Constraint("Diameter", 0, Q("3.736043 mm")))
sketch24.addConstraint(Sketcher.Constraint("DistanceY", -1, 1, 0, 3, Q("2.153922 mm")))
sketch24.addConstraint(Sketcher.Constraint("DistanceX", 0, 3, -1, 1, Q("12.942846 mm")))
pocket23 = body.newObject("PartDesign::Pocket", "Pocket022")
pocket23.Profile = sketch24
pocket23.Length = 2
pocket23.Reversed = True

# Sketch on XZ plane
sketch25 = body.newObject("Sketcher::SketchObject", "Sketch024")
sketch25.AttachmentSupport = (doc.getObject("XZ_Plane"), [""])
sketch25.MapMode = "FlatFace"
sketch25.AttachmentOffset = App.Placement(Vector(0, 0, -2), App.Rotation())
sketch25.addGeometry(Part.Circle(Vector(-17.4, 2.2, 0), Vector(0, 0, 1), 1.9), False)
sketch25.addConstraint(Sketcher.Constraint("Diameter", 0, Q("3.736043 mm")))
sketch25.addConstraint(Sketcher.Constraint("DistanceY", -1, 1, 0, 3, Q("2.153922 mm")))
sketch25.addConstraint(Sketcher.Constraint("DistanceX", 0, 3, -1, 1, Q("17.442846 mm")))
pocket24 = body.newObject("PartDesign::Pocket", "Pocket023")
pocket24.Profile = sketch25
pocket24.Length = 2
pocket24.Reversed = True

# Sketch on XZ plane
sketch26 = body.newObject("Sketcher::SketchObject", "Sketch025")
sketch26.AttachmentSupport = (doc.getObject("XZ_Plane"), [""])
sketch26.MapMode = "FlatFace"
sketch26.AttachmentOffset = App.Placement(Vector(0, 0, -2), App.Rotation())
sketch26.addGeometry(Part.Circle(Vector(-21.9, 2.2, 0), Vector(0, 0, 1), 1.9), False)
sketch26.addConstraint(Sketcher.Constraint("Diameter", 0, Q("3.736043 mm")))
sketch26.addConstraint(Sketcher.Constraint("DistanceY", -1, 1, 0, 3, Q("2.153922 mm")))
sketch26.addConstraint(Sketcher.Constraint("DistanceX", 0, 3, -1, 1, Q("21.942846 mm")))
pocket25 = body.newObject("PartDesign::Pocket", "Pocket024")
pocket25.Profile = sketch26
pocket25.Length = 2
pocket25.Reversed = True

# Sketch on XZ plane
sketch27 = body.newObject("Sketcher::SketchObject", "Sketch026")
sketch27.AttachmentSupport = (doc.getObject("XZ_Plane"), [""])
sketch27.MapMode = "FlatFace"
sketch27.AttachmentOffset = App.Placement(Vector(0, 0, -2), App.Rotation())
sketch27.addGeometry(Part.Circle(Vector(11.9, 6, 0), Vector(0, 0, 1), 1.9), False)
sketch27.addConstraint(Sketcher.Constraint("Diameter", 0, Q("3.736043 mm")))
sketch27.addConstraint(Sketcher.Constraint("DistanceX", -1, 1, 0, 3, Q("11.873358 mm")))
sketch27.addConstraint(Sketcher.Constraint("DistanceY", -1, 1, 0, 3, Q("6.012056 mm")))
pocket26 = body.newObject("PartDesign::Pocket", "Pocket025")
pocket26.Profile = sketch27
pocket26.Length = 2
pocket26.Reversed = True

# Sketch on XZ plane
sketch28 = body.newObject("Sketcher::SketchObject", "Sketch027")
sketch28.AttachmentSupport = (doc.getObject("XZ_Plane"), [""])
sketch28.MapMode = "FlatFace"
sketch28.AttachmentOffset = App.Placement(Vector(0, 0, -2), App.Rotation())
sketch28.addGeometry(Part.Circle(Vector(7.4, 6, 0), Vector(0, 0, 1), 1.9), False)
sketch28.addConstraint(Sketcher.Constraint("Diameter", 0, Q("3.736043 mm")))
sketch28.addConstraint(Sketcher.Constraint("DistanceX", -1, 1, 0, 3, Q("7.373358 mm")))
sketch28.addConstraint(Sketcher.Constraint("DistanceY", -1, 1, 0, 3, Q("6.012056 mm")))
pocket27 = body.newObject("PartDesign::Pocket", "Pocket026")
pocket27.Profile = sketch28
pocket27.Length = 2
pocket27.Reversed = True

# Sketch on XZ plane
sketch29 = body.newObject("Sketcher::SketchObject", "Sketch028")
sketch29.AttachmentSupport = (doc.getObject("XZ_Plane"), [""])
sketch29.MapMode = "FlatFace"
sketch29.AttachmentOffset = App.Placement(Vector(0, 0, -2), App.Rotation())
sketch29.addGeometry(Part.Circle(Vector(2.9, 6, 0), Vector(0, 0, 1), 1.9), False)
sketch29.addConstraint(Sketcher.Constraint("Diameter", 0, Q("3.736043 mm")))
sketch29.addConstraint(Sketcher.Constraint("DistanceX", -1, 1, 0, 3, Q("2.873358 mm")))
sketch29.addConstraint(Sketcher.Constraint("DistanceY", -1, 1, 0, 3, Q("6.012056 mm")))
pocket28 = body.newObject("PartDesign::Pocket", "Pocket027")
pocket28.Profile = sketch29
pocket28.Length = 2
pocket28.Reversed = True

# Sketch on XZ plane
sketch30 = body.newObject("Sketcher::SketchObject", "Sketch029")
sketch30.AttachmentSupport = (doc.getObject("XZ_Plane"), [""])
sketch30.MapMode = "FlatFace"
sketch30.AttachmentOffset = App.Placement(Vector(0, 0, -2), App.Rotation())
sketch30.addGeometry(Part.Circle(Vector(-1.6, 6, 0), Vector(0, 0, 1), 1.9), False)
sketch30.addConstraint(Sketcher.Constraint("Diameter", 0, Q("3.736043 mm")))
sketch30.addConstraint(Sketcher.Constraint("DistanceX", 0, 3, -1, 1, Q("1.626642 mm")))
sketch30.addConstraint(Sketcher.Constraint("DistanceY", -1, 1, 0, 3, Q("6.012056 mm")))
pocket29 = body.newObject("PartDesign::Pocket", "Pocket028")
pocket29.Profile = sketch30
pocket29.Length = 2
pocket29.Reversed = True

# Sketch on XZ plane
sketch31 = body.newObject("Sketcher::SketchObject", "Sketch030")
sketch31.AttachmentSupport = (doc.getObject("XZ_Plane"), [""])
sketch31.MapMode = "FlatFace"
sketch31.AttachmentOffset = App.Placement(Vector(0, 0, -2), App.Rotation())
sketch31.addGeometry(Part.Circle(Vector(-6.1, 6, 0), Vector(0, 0, 1), 1.9), False)
sketch31.addConstraint(Sketcher.Constraint("Diameter", 0, Q("3.736043 mm")))
sketch31.addConstraint(Sketcher.Constraint("DistanceX", 0, 3, -1, 1, Q("6.126642 mm")))
sketch31.addConstraint(Sketcher.Constraint("DistanceY", -1, 1, 0, 3, Q("6.012056 mm")))
pocket30 = body.newObject("PartDesign::Pocket", "Pocket029")
pocket30.Profile = sketch31
pocket30.Length = 2
pocket30.Reversed = True

# Sketch on XZ plane
sketch32 = body.newObject("Sketcher::SketchObject", "Sketch031")
sketch32.AttachmentSupport = (doc.getObject("XZ_Plane"), [""])
sketch32.MapMode = "FlatFace"
sketch32.AttachmentOffset = App.Placement(Vector(0, 0, -2), App.Rotation())
sketch32.addGeometry(Part.Circle(Vector(-10.6, 6, 0), Vector(0, 0, 1), 1.9), False)
sketch32.addConstraint(Sketcher.Constraint("Diameter", 0, Q("3.736043 mm")))
sketch32.addConstraint(Sketcher.Constraint("DistanceX", 0, 3, -1, 1, Q("10.626642 mm")))
sketch32.addConstraint(Sketcher.Constraint("DistanceY", -1, 1, 0, 3, Q("6.012056 mm")))
pocket31 = body.newObject("PartDesign::Pocket", "Pocket030")
pocket31.Profile = sketch32
pocket31.Length = 2
pocket31.Reversed = True

# Sketch on XZ plane
sketch33 = body.newObject("Sketcher::SketchObject", "Sketch032")
sketch33.AttachmentSupport = (doc.getObject("XZ_Plane"), [""])
sketch33.MapMode = "FlatFace"
sketch33.AttachmentOffset = App.Placement(Vector(0, 0, -2), App.Rotation())
sketch33.addGeometry(Part.Circle(Vector(-15.1, 6, 0), Vector(0, 0, 1), 1.9), False)
sketch33.addConstraint(Sketcher.Constraint("Diameter", 0, Q("3.736043 mm")))
sketch33.addConstraint(Sketcher.Constraint("DistanceX", 0, 3, -1, 1, Q("15.126642 mm")))
sketch33.addConstraint(Sketcher.Constraint("DistanceY", -1, 1, 0, 3, Q("6.012056 mm")))
pocket32 = body.newObject("PartDesign::Pocket", "Pocket031")
pocket32.Profile = sketch33
pocket32.Length = 2
pocket32.Reversed = True

# Sketch on XZ plane
sketch34 = body.newObject("Sketcher::SketchObject", "Sketch033")
sketch34.AttachmentSupport = (doc.getObject("XZ_Plane"), [""])
sketch34.MapMode = "FlatFace"
sketch34.AttachmentOffset = App.Placement(Vector(0, 0, -2), App.Rotation())
sketch34.addGeometry(Part.Circle(Vector(-19.6, 6, 0), Vector(0, 0, 1), 1.9), False)
sketch34.addConstraint(Sketcher.Constraint("Diameter", 0, Q("3.736043 mm")))
sketch34.addConstraint(Sketcher.Constraint("DistanceX", 0, 3, -1, 1, Q("19.626642 mm")))
sketch34.addConstraint(Sketcher.Constraint("DistanceY", -1, 1, 0, 3, Q("6.012056 mm")))
pocket33 = body.newObject("PartDesign::Pocket", "Pocket032")
pocket33.Profile = sketch34
pocket33.Length = 2
pocket33.Reversed = True

# Sketch on XZ plane
sketch35 = body.newObject("Sketcher::SketchObject", "Sketch034")
sketch35.AttachmentSupport = (doc.getObject("XZ_Plane"), [""])
sketch35.MapMode = "FlatFace"
sketch35.AttachmentOffset = App.Placement(Vector(0, 0, -2), App.Rotation())
sketch35.addGeometry(Part.Circle(Vector(14.2, 9.9, 0), Vector(0, 0, 1), 1.9), False)
sketch35.addConstraint(Sketcher.Constraint("Diameter", 0, Q("3.736043 mm")))
sketch35.addConstraint(Sketcher.Constraint("DistanceX", -1, 1, 0, 3, Q("14.189562 mm")))
sketch35.addConstraint(Sketcher.Constraint("DistanceY", -1, 1, 0, 3, Q("9.87019 mm")))
pocket34 = body.newObject("PartDesign::Pocket", "Pocket033")
pocket34.Profile = sketch35
pocket34.Length = 2
pocket34.Reversed = True

# Sketch on XZ plane
sketch36 = body.newObject("Sketcher::SketchObject", "Sketch035")
sketch36.AttachmentSupport = (doc.getObject("XZ_Plane"), [""])
sketch36.MapMode = "FlatFace"
sketch36.AttachmentOffset = App.Placement(Vector(0, 0, -2), App.Rotation())
sketch36.addGeometry(Part.Circle(Vector(9.7, 9.9, 0), Vector(0, 0, 1), 1.9), False)
sketch36.addConstraint(Sketcher.Constraint("Diameter", 0, Q("3.736043 mm")))
sketch36.addConstraint(Sketcher.Constraint("DistanceX", -1, 1, 0, 3, Q("9.689562 mm")))
sketch36.addConstraint(Sketcher.Constraint("DistanceY", -1, 1, 0, 3, Q("9.87019 mm")))
pocket35 = body.newObject("PartDesign::Pocket", "Pocket034")
pocket35.Profile = sketch36
pocket35.Length = 2
pocket35.Reversed = True

# Sketch on XZ plane
sketch37 = body.newObject("Sketcher::SketchObject", "Sketch036")
sketch37.AttachmentSupport = (doc.getObject("XZ_Plane"), [""])
sketch37.MapMode = "FlatFace"
sketch37.AttachmentOffset = App.Placement(Vector(0, 0, -2), App.Rotation())
sketch37.addGeometry(Part.Circle(Vector(5.2, 9.9, 0), Vector(0, 0, 1), 1.9), False)
sketch37.addConstraint(Sketcher.Constraint("Diameter", 0, Q("3.736043 mm")))
sketch37.addConstraint(Sketcher.Constraint("DistanceX", -1, 1, 0, 3, Q("5.189562 mm")))
sketch37.addConstraint(Sketcher.Constraint("DistanceY", -1, 1, 0, 3, Q("9.87019 mm")))
pocket36 = body.newObject("PartDesign::Pocket", "Pocket035")
pocket36.Profile = sketch37
pocket36.Length = 2
pocket36.Reversed = True

# Sketch on XZ plane
sketch38 = body.newObject("Sketcher::SketchObject", "Sketch037")
sketch38.AttachmentSupport = (doc.getObject("XZ_Plane"), [""])
sketch38.MapMode = "FlatFace"
sketch38.AttachmentOffset = App.Placement(Vector(0, 0, -2), App.Rotation())
sketch38.addGeometry(Part.Circle(Vector(0.7, 9.9, 0), Vector(0, 0, 1), 1.9), False)
sketch38.addConstraint(Sketcher.Constraint("Diameter", 0, Q("3.736043 mm")))
sketch38.addConstraint(Sketcher.Constraint("DistanceX", -1, 1, 0, 3, Q("0.689562 mm")))
sketch38.addConstraint(Sketcher.Constraint("DistanceY", -1, 1, 0, 3, Q("9.87019 mm")))
pocket37 = body.newObject("PartDesign::Pocket", "Pocket036")
pocket37.Profile = sketch38
pocket37.Length = 2
pocket37.Reversed = True

# Sketch on XZ plane
sketch39 = body.newObject("Sketcher::SketchObject", "Sketch038")
sketch39.AttachmentSupport = (doc.getObject("XZ_Plane"), [""])
sketch39.MapMode = "FlatFace"
sketch39.AttachmentOffset = App.Placement(Vector(0, 0, -2), App.Rotation())
sketch39.addGeometry(Part.Circle(Vector(-3.8, 9.9, 0), Vector(0, 0, 1), 1.9), False)
sketch39.addConstraint(Sketcher.Constraint("Diameter", 0, Q("3.736043 mm")))
sketch39.addConstraint(Sketcher.Constraint("DistanceX", 0, 3, -1, 1, Q("3.810438 mm")))
sketch39.addConstraint(Sketcher.Constraint("DistanceY", -1, 1, 0, 3, Q("9.87019 mm")))
pocket38 = body.newObject("PartDesign::Pocket", "Pocket037")
pocket38.Profile = sketch39
pocket38.Length = 2
pocket38.Reversed = True

# Sketch on XZ plane
sketch40 = body.newObject("Sketcher::SketchObject", "Sketch039")
sketch40.AttachmentSupport = (doc.getObject("XZ_Plane"), [""])
sketch40.MapMode = "FlatFace"
sketch40.AttachmentOffset = App.Placement(Vector(0, 0, -2), App.Rotation())
sketch40.addGeometry(Part.Circle(Vector(-8.3, 9.9, 0), Vector(0, 0, 1), 1.9), False)
sketch40.addConstraint(Sketcher.Constraint("Diameter", 0, Q("3.736043 mm")))
sketch40.addConstraint(Sketcher.Constraint("DistanceX", 0, 3, -1, 1, Q("8.310438 mm")))
sketch40.addConstraint(Sketcher.Constraint("DistanceY", -1, 1, 0, 3, Q("9.87019 mm")))
pocket39 = body.newObject("PartDesign::Pocket", "Pocket038")
pocket39.Profile = sketch40
pocket39.Length = 2
pocket39.Reversed = True

# Sketch on XZ plane
sketch41 = body.newObject("Sketcher::SketchObject", "Sketch040")
sketch41.AttachmentSupport = (doc.getObject("XZ_Plane"), [""])
sketch41.MapMode = "FlatFace"
sketch41.AttachmentOffset = App.Placement(Vector(0, 0, -2), App.Rotation())
sketch41.addGeometry(Part.Circle(Vector(-12.8, 9.9, 0), Vector(0, 0, 1), 1.9), False)
sketch41.addConstraint(Sketcher.Constraint("Diameter", 0, Q("3.736043 mm")))
sketch41.addConstraint(Sketcher.Constraint("DistanceX", 0, 3, -1, 1, Q("12.810438 mm")))
sketch41.addConstraint(Sketcher.Constraint("DistanceY", -1, 1, 0, 3, Q("9.87019 mm")))
pocket40 = body.newObject("PartDesign::Pocket", "Pocket039")
pocket40.Profile = sketch41
pocket40.Length = 2
pocket40.Reversed = True

# Sketch on XZ plane
sketch42 = body.newObject("Sketcher::SketchObject", "Sketch041")
sketch42.AttachmentSupport = (doc.getObject("XZ_Plane"), [""])
sketch42.MapMode = "FlatFace"
sketch42.AttachmentOffset = App.Placement(Vector(0, 0, -2), App.Rotation())
sketch42.addGeometry(Part.Circle(Vector(-17.3, 9.9, 0), Vector(0, 0, 1), 1.9), False)
sketch42.addConstraint(Sketcher.Constraint("Diameter", 0, Q("3.736043 mm")))
sketch42.addConstraint(Sketcher.Constraint("DistanceX", 0, 3, -1, 1, Q("17.310438 mm")))
sketch42.addConstraint(Sketcher.Constraint("DistanceY", -1, 1, 0, 3, Q("9.87019 mm")))
pocket41 = body.newObject("PartDesign::Pocket", "Pocket040")
pocket41.Profile = sketch42
pocket41.Length = 2
pocket41.Reversed = True

doc.recompute()
